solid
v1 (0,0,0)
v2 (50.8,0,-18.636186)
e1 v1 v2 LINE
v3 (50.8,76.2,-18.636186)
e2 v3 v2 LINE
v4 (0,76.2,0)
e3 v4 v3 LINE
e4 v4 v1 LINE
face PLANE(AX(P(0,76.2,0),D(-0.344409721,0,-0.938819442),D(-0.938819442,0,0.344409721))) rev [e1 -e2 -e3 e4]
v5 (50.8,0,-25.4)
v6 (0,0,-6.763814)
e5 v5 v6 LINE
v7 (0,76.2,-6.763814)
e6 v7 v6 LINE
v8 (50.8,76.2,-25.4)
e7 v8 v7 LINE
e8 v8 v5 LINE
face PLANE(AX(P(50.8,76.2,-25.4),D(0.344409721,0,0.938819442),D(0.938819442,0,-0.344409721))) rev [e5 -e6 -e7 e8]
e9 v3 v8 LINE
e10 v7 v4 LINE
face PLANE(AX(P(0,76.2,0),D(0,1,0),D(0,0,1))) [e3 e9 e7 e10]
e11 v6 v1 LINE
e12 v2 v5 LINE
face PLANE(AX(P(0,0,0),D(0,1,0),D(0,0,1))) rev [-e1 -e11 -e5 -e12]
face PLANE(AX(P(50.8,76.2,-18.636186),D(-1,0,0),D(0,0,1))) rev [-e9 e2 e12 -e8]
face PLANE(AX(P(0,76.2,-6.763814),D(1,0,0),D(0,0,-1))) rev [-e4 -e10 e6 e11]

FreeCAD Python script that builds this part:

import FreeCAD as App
import Part
import Sketcher
from FreeCAD import Vector
Q = App.Units.Quantity


def add_polygon(sketch, points):
    """Adds a closed chain of lines whose ends are joined by coincident constraints."""
    first, n = sketch.GeometryCount, len(points)
    for a, b in zip(points, points[1:] + points[:1]):
        sketch.addGeometry(Part.LineSegment(App.Vector(*a, 0), App.Vector(*b, 0)), False)
    for i in range(n):
        sketch.addConstraint(Sketcher.Constraint("Coincident", first + i, 2, first + (i + 1) % n, 1))

doc = App.newDocument("Part")
params = doc.addObject("Spreadsheet::Sheet", "Params")
for row, (alias, value) in enumerate([
    ("pad1_length", "3 in"),
], start=1):
    params.set(f"A{row}", alias)
    params.set(f"B{row}", "=" + value)
    params.setAlias(f"B{row}", alias)

body = doc.addObject("PartDesign::Body", "Body")

sketch1 = body.newObject("Sketcher::SketchObject", "Sketch")
sketch1.AttachmentSupport = (doc.getObject("XZ_Plane"), [""])
sketch1.MapMode = "FlatFace"
add_polygon(sketch1, [(0, 0), (51, -19), (51, -25), (0, -7)])
sketch1.addConstraint([
    Sketcher.Constraint("Vertical", 1),
    Sketcher.Constraint("Vertical", 3),
    Sketcher.Constraint("Coincident", 3, 2, -1, 1),
    Sketcher.Constraint("Parallel", 0, 2),
    Sketcher.Constraint("DistanceX", -1, 1, 0, 2, Q("2 in")),
    Sketcher.Constraint("DistanceY", 1, 2, -1, 1, Q("1 in")),
    Sketcher.Constraint("Distance", 0, Q("54.110511 mm")),
])
pad1 = body.newObject("PartDesign::Pad", "Pad")
pad1.Profile = sketch1
pad1.setExpression("Length", "Params.pad1_length")
pad1.Reversed = True

doc.recompute()
